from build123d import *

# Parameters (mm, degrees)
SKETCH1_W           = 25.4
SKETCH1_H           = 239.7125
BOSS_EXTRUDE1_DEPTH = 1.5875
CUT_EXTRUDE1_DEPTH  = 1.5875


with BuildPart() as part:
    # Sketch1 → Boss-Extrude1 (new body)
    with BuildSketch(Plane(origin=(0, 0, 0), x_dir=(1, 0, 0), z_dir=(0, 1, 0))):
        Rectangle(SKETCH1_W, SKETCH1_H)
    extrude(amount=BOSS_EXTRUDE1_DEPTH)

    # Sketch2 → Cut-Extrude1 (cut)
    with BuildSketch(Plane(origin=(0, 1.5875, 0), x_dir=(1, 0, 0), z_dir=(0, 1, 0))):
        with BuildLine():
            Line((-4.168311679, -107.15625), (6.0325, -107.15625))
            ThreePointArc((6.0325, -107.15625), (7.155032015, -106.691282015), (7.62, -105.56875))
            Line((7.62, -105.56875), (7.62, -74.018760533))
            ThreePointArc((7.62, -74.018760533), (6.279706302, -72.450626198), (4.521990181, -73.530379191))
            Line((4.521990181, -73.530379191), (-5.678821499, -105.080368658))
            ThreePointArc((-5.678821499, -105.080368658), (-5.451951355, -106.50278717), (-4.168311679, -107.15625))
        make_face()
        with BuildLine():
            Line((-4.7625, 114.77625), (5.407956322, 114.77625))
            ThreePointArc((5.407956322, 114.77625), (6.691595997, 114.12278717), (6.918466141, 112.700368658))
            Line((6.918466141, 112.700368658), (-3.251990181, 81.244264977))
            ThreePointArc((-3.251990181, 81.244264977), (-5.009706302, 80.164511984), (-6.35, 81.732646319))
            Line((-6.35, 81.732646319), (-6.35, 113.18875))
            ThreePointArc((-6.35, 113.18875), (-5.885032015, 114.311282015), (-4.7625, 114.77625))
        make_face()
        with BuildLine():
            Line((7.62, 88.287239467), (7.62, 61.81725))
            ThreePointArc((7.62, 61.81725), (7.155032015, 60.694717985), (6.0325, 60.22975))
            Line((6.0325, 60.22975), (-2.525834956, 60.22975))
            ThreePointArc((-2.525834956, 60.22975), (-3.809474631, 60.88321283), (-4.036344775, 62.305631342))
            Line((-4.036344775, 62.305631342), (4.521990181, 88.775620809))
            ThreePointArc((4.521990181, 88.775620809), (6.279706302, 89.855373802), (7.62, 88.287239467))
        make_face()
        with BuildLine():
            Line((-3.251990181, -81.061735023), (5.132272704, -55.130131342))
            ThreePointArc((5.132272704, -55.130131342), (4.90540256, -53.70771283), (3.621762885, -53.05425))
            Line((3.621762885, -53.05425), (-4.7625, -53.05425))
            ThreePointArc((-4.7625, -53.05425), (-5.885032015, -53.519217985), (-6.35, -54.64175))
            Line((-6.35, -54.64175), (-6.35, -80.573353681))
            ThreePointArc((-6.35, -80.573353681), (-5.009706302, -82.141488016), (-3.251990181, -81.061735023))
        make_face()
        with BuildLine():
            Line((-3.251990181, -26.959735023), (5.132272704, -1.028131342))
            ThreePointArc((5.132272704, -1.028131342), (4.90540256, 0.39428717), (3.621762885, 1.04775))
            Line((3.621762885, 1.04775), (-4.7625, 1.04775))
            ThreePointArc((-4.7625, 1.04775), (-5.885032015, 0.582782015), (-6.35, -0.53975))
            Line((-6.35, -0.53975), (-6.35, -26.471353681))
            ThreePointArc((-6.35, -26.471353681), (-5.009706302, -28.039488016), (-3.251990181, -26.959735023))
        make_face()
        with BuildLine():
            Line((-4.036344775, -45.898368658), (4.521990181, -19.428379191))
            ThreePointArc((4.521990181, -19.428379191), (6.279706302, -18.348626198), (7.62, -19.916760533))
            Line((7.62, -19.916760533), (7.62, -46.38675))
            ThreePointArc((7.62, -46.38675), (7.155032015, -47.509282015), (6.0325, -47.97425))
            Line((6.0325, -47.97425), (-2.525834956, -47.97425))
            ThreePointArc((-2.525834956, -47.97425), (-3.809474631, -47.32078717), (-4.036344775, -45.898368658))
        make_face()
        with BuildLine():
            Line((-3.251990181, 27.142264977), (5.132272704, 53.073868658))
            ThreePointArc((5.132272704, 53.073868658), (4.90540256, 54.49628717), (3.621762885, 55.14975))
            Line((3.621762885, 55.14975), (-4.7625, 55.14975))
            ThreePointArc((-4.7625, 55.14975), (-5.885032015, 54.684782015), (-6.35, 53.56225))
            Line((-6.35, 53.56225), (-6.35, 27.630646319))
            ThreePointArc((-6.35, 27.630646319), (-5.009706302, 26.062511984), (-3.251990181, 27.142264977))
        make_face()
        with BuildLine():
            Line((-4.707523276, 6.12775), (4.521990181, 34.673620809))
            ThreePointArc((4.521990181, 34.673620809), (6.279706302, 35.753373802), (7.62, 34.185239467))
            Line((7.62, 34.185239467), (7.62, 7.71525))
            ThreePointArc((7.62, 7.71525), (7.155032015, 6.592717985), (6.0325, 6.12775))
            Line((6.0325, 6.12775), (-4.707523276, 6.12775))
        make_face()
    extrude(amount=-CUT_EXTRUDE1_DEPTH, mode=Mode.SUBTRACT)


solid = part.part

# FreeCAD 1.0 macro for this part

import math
import FreeCAD as App
import Part
import Sketcher
from FreeCAD import Vector
Q = App.Units.Quantity


def add_polygon(sketch, points):
    """Adds a closed chain of lines whose ends are joined by coincident constraints."""
    first, n = sketch.GeometryCount, len(points)
    for a, b in zip(points, points[1:] + points[:1]):
        sketch.addGeometry(Part.LineSegment(App.Vector(*a, 0), App.Vector(*b, 0)), False)
    for i in range(n):
        sketch.addConstraint(Sketcher.Constraint("Coincident", first + i, 2, first + (i + 1) % n, 1))

doc = App.newDocument("Part")
body = doc.addObject("PartDesign::Body", "Body")

sketch1 = body.newObject("Sketcher::SketchObject", "Sketch")
sketch1.AttachmentSupport = (doc.getObject("XZ_Plane"), [""])
sketch1.MapMode = "FlatFace"
add_polygon(sketch1, [(-13, -120), (-13, 120), (13, 120), (13, -120)])
sketch1.addConstraint([
    Sketcher.Constraint("Vertical", 0),
    Sketcher.Constraint("Horizontal", 1),
    Sketcher.Constraint("Vertical", 2),
    Sketcher.Constraint("Horizontal", 3),
    Sketcher.Constraint("Symmetric", 0, 2, 2, 2, -1, 1),
    Sketcher.Constraint("DistanceX", 1, 1, 1, 2, Q("1 in")),
    Sketcher.Constraint("DistanceY", 0, 1, 0, 2, Q("9.4375 in")),
])
pad1 = body.newObject("PartDesign::Pad", "Pad")
pad1.Profile = sketch1
pad1.Length = Q("0.0625 in")
pad1.Reversed = True

sketch2 = body.newObject("Sketcher::SketchObject", "Sketch001")
sketch2.AttachmentSupport = (doc.getObject("XZ_Plane"), [""])
sketch2.MapMode = "FlatFace"
sketch2.AttachmentOffset = App.Placement(Vector(0, 0, -0.0625 * 25.4), App.Rotation())
sketch2.addGeometry([
    Part.LineSegment(Vector(-4.2, 107.2, 0), Vector(6, 107.2, 0)),
    Part.ArcOfCircle(Part.Circle(Vector(6, 105.6, 0), Vector(0, 0, 1), 1.6), math.radians(0), math.radians(90)),
    Part.LineSegment(Vector(7.6, 105.6, 0), Vector(7.6, 74, 0)),
    Part.ArcOfCircle(Part.Circle(Vector(6, 74, 0), Vector(0, 0, 1), 1.6), math.radians(-162), math.radians(0)),
    Part.LineSegment(Vector(4.5, 73.5, 0), Vector(-5.7, 105.1, 0)),
    Part.ArcOfCircle(Part.Circle(Vector(-4.2, 105.6, 0), Vector(0, 0, 1), 1.6), math.radians(90), math.radians(198)),
    Part.LineSegment(Vector(5.4, -114.8, 0), Vector(-4.8, -114.8, 0)),
    Part.ArcOfCircle(Part.Circle(Vector(-4.8, -113.2, 0), Vector(0, 0, 1), 1.6), math.radians(180), math.radians(270)),
    Part.LineSegment(Vector(-6.3, -113.2, 0), Vector(-6.3, -81.7, 0)),
    Part.ArcOfCircle(Part.Circle(Vector(-4.8, -81.7, 0), Vector(0, 0, 1), 1.6), math.radians(18), math.radians(180)),
    Part.LineSegment(Vector(-3.3, -81.2, 0), Vector(6.9, -112.7, 0)),
    Part.ArcOfCircle(Part.Circle(Vector(5.4, -113.2, 0), Vector(0, 0, 1), 1.6), math.radians(-90), math.radians(18)),
    Part.LineSegment(Vector(7.6, -61.8, 0), Vector(7.6, -88.3, 0)),
    Part.ArcOfCircle(Part.Circle(Vector(6, -88.3, 0), Vector(0, 0, 1), 1.6), math.radians(-162), math.radians(0)),
    Part.LineSegment(Vector(4.5, -88.8, 0), Vector(-4, -62.3, 0)),
    Part.ArcOfCircle(Part.Circle(Vector(-2.5, -61.8, 0), Vector(0, 0, 1), 1.6), math.radians(90), math.radians(198)),
    Part.LineSegment(Vector(-2.5, -60.2, 0), Vector(6, -60.2, 0)),
    Part.ArcOfCircle(Part.Circle(Vector(6, -61.8, 0), Vector(0, 0, 1), 1.6), math.radians(0), math.radians(90)),
    Part.LineSegment(Vector(-3.3, 81.1, 0), Vector(5.1, 55.1, 0)),
    Part.ArcOfCircle(Part.Circle(Vector(3.6, 54.6, 0), Vector(0, 0, 1), 1.6), math.radians(-90), math.radians(18)),
    Part.LineSegment(Vector(3.6, 53.1, 0), Vector(-4.8, 53.1, 0)),
    Part.ArcOfCircle(Part.Circle(Vector(-4.8, 54.6, 0), Vector(0, 0, 1), 1.6), math.radians(180), math.radians(270)),
    Part.LineSegment(Vector(-6.3, 54.6, 0), Vector(-6.3, 80.6, 0)),
    Part.ArcOfCircle(Part.Circle(Vector(-4.8, 80.6, 0), Vector(0, 0, 1), 1.6), math.radians(18), math.radians(180)),
    Part.LineSegment(Vector(-3.3, 27, 0), Vector(5.1, 1, 0)),
    Part.ArcOfCircle(Part.Circle(Vector(3.6, 0.5, 0), Vector(0, 0, 1), 1.6), math.radians(-90), math.radians(18)),
    Part.LineSegment(Vector(3.6, -1, 0), Vector(-4.8, -1, 0)),
    Part.ArcOfCircle(Part.Circle(Vector(-4.8, 0.5, 0), Vector(0, 0, 1), 1.6), math.radians(180), math.radians(270)),
    Part.LineSegment(Vector(-6.3, 0.5, 0), Vector(-6.3, 26.5, 0)),
    Part.ArcOfCircle(Part.Circle(Vector(-4.8, 26.5, 0), Vector(0, 0, 1), 1.6), math.radians(18), math.radians(180)),
    Part.LineSegment(Vector(4.5, 19.4, 0), Vector(-4, 45.9, 0)),
    Part.ArcOfCircle(Part.Circle(Vector(-2.5, 46.4, 0), Vector(0, 0, 1), 1.6), math.radians(90), math.radians(198)),
    Part.LineSegment(Vector(-2.5, 48, 0), Vector(6, 48, 0)),
    Part.ArcOfCircle(Part.Circle(Vector(6, 46.4, 0), Vector(0, 0, 1), 1.6), math.radians(0), math.radians(90)),
    Part.LineSegment(Vector(7.6, 46.4, 0), Vector(7.6, 19.9, 0)),
    Part.ArcOfCircle(Part.Circle(Vector(6, 19.9, 0), Vector(0, 0, 1), 1.6), math.radians(-162), math.radians(0)),
    Part.LineSegment(Vector(-3.3, -27.1, 0), Vector(5.1, -53.1, 0)),
    Part.ArcOfCircle(Part.Circle(Vector(3.6, -53.6, 0), Vector(0, 0, 1), 1.6), math.radians(-90), math.radians(18)),
    Part.LineSegment(Vector(3.6, -55.1, 0), Vector(-4.8, -55.1, 0)),
    Part.ArcOfCircle(Part.Circle(Vector(-4.8, -53.6, 0), Vector(0, 0, 1), 1.6), math.radians(180), math.radians(270)),
    Part.LineSegment(Vector(-6.3, -53.6, 0), Vector(-6.3, -27.6, 0)),
    Part.ArcOfCircle(Part.Circle(Vector(-4.8, -27.6, 0), Vector(0, 0, 1), 1.6), math.radians(18), math.radians(180)),
    Part.LineSegment(Vector(4.5, -34.7, 0), Vector(-4.7, -6.1, 0)),
    Part.LineSegment(Vector(-4.7, -6.1, 0), Vector(6, -6.1, 0)),
    Part.ArcOfCircle(Part.Circle(Vector(6, -7.7, 0), Vector(0, 0, 1), 1.6), math.radians(0), math.radians(90)),
    Part.LineSegment(Vector(7.6, -7.7, 0), Vector(7.6, -34.2, 0)),
    Part.ArcOfCircle(Part.Circle(Vector(6, -34.2, 0), Vector(0, 0, 1), 1.6), math.radians(-162), math.radians(0)),
], False)
sketch2.addConstraint([
    Sketcher.Constraint("Tangent", 0, 2, 1, 2),
    Sketcher.Constraint("Tangent", 1, 1, 2, 1),
    Sketcher.Constraint("Tangent", 2, 2, 3, 2),
    Sketcher.Constraint("Tangent", 3, 1, 4, 1),
    Sketcher.Constraint("Tangent", 4, 2, 5, 2),
    Sketcher.Constraint("Tangent", 5, 1, 0, 1),
    Sketcher.Constraint("Tangent", 6, 2, 7, 2),
    Sketcher.Constraint("Tangent", 7, 1, 8, 1),
    Sketcher.Constraint("Tangent", 8, 2, 9, 2),
    Sketcher.Constraint("Tangent", 9, 1, 10, 1),
    Sketcher.Constraint("Tangent", 10, 2, 11, 2),
    Sketcher.Constraint("Tangent", 11, 1, 6, 1),
    Sketcher.Constraint("Tangent", 12, 2, 13, 2),
    Sketcher.Constraint("Tangent", 13, 1, 14, 1),
    Sketcher.Constraint("Tangent", 14, 2, 15, 2),
    Sketcher.Constraint("Tangent", 15, 1, 16, 1),
    Sketcher.Constraint("Tangent", 16, 2, 17, 2),
    Sketcher.Constraint("Tangent", 17, 1, 12, 1),
    Sketcher.Constraint("Tangent", 18, 2, 19, 2),
    Sketcher.Constraint("Tangent", 19, 1, 20, 1),
    Sketcher.Constraint("Tangent", 20, 2, 21, 2),
    Sketcher.Constraint("Tangent", 21, 1, 22, 1),
    Sketcher.Constraint("Tangent", 22, 2, 23, 2),
    Sketcher.Constraint("Tangent", 23, 1, 18, 1),
    Sketcher.Constraint("Tangent", 24, 2, 25, 2),
    Sketcher.Constraint("Tangent", 25, 1, 26, 1),
    Sketcher.Constraint("Tangent", 26, 2, 27, 2),
    Sketcher.Constraint("Tangent", 27, 1, 28, 1),
    Sketcher.Constraint("Tangent", 28, 2, 29, 2),
    Sketcher.Constraint("Tangent", 29, 1, 24, 1),
    Sketcher.Constraint("Tangent", 30, 2, 31, 2),
    Sketcher.Constraint("Tangent", 31, 1, 32, 1),
    Sketcher.Constraint("Tangent", 32, 2, 33, 2),
    Sketcher.Constraint("Tangent", 33, 1, 34, 1),
    Sketcher.Constraint("Tangent", 34, 2, 35, 2),
    Sketcher.Constraint("Tangent", 35, 1, 30, 1),
    Sketcher.Constraint("Tangent", 36, 2, 37, 2),
    Sketcher.Constraint("Tangent", 37, 1, 38, 1),
    Sketcher.Constraint("Tangent", 38, 2, 39, 2),
    Sketcher.Constraint("Tangent", 39, 1, 40, 1),
    Sketcher.Constraint("Tangent", 40, 2, 41, 2),
    Sketcher.Constraint("Tangent", 41, 1, 36, 1),
    Sketcher.Constraint("Coincident", 42, 2, 43, 1),
    Sketcher.Constraint("Tangent", 43, 2, 44, 2),
    Sketcher.Constraint("Tangent", 44, 1, 45, 1),
    Sketcher.Constraint("Tangent", 45, 2, 46, 2),
    Sketcher.Constraint("Tangent", 46, 1, 42, 1),
    Sketcher.Constraint("Horizontal", 0),
    Sketcher.Constraint("Vertical", 2),
    Sketcher.Constraint("Horizontal", 6),
    Sketcher.Constraint("Vertical", 8),
    Sketcher.Constraint("Vertical", 12),
    Sketcher.Constraint("Horizontal", 16),
    Sketcher.Constraint("Horizontal", 20),
    Sketcher.Constraint("Vertical", 22),
    Sketcher.Constraint("Horizontal", 26),
    Sketcher.Constraint("Vertical", 28),
    Sketcher.Constraint("Horizontal", 32),
    Sketcher.Constraint("Vertical", 34),
    Sketcher.Constraint("Horizontal", 38),
    Sketcher.Constraint("Vertical", 40),
    Sketcher.Constraint("Horizontal", 43),
    Sketcher.Constraint("Vertical", 45),
    Sketcher.Constraint("Equal", 1, 3),
    Sketcher.Constraint("Equal", 3, 5),
    Sketcher.Constraint("Equal", 5, 7),
    Sketcher.Constraint("Equal", 7, 9),
    Sketcher.Constraint("Equal", 9, 11),
    Sketcher.Constraint("Equal", 11, 13),
    Sketcher.Constraint("Equal", 13, 15),
    Sketcher.Constraint("Equal", 15, 17),
    Sketcher.Constraint("Equal", 17, 19),
    Sketcher.Constraint("Equal", 19, 21),
    Sketcher.Constraint("Equal", 21, 23),
    Sketcher.Constraint("Equal", 23, 25),
    Sketcher.Constraint("Equal", 25, 27),
    Sketcher.Constraint("Equal", 27, 29),
    Sketcher.Constraint("Equal", 29, 31),
    Sketcher.Constraint("Equal", 31, 33),
    Sketcher.Constraint("Equal", 33, 35),
    Sketcher.Constraint("Equal", 35, 37),
    Sketcher.Constraint("Equal", 37, 39),
    Sketcher.Constraint("Equal", 39, 41),
    Sketcher.Constraint("Equal", 41, 44),
    Sketcher.Constraint("Equal", 44, 46),
    Sketcher.Constraint("Parallel", 4, 10),
    Sketcher.Constraint("Parallel", 10, 14),
    Sketcher.Constraint("Parallel", 14, 18),
    Sketcher.Constraint("Parallel", 18, 24),
    Sketcher.Constraint("Parallel", 24, 30),
    Sketcher.Constraint("Parallel", 30, 36),
    Sketcher.Constraint("Parallel", 36, 42),
    Sketcher.Constraint("Vertical", 3, 3, 13, 3),
    Sketcher.Constraint("Vertical", 9, 3, 21, 3),
    Sketcher.Constraint("Vertical", 19, 3, 25, 3),
    Sketcher.Constraint("Vertical", 23, 3, 27, 3),
    Sketcher.Constraint("Vertical", 15, 3, 31, 3),
    Sketcher.Constraint("Vertical", 17, 3, 33, 3),
    Sketcher.Constraint("Vertical", 25, 3, 37, 3),
    Sketcher.Constraint("Vertical", 29, 3, 39, 3),
    Sketcher.Constraint("Vertical", 35, 3, 44, 3),
    Sketcher.Constraint("Equal", 34, 45),
    Sketcher.Constraint("Radius", 1, Q("0.0625 in")),
    Sketcher.Constraint("DistanceX", -1, 1, 1, 1, Q("0.3 in")),
    Sketcher.Constraint("DistanceX", 7, 1, -1, 1, Q("0.25 in")),
    Sketcher.Constraint("DistanceY", -1, 1, 1, 3, Q("4.15625 in")),
    Sketcher.Constraint("DistanceX", 0, 1, 0, 2, 10.200812),
    Sketcher.Constraint("DistanceY", 2, 2, 2, 1, 31.549989),
    Sketcher.Constraint("DistanceY", 12, 2, 12, 1, 26.469989),
    Sketcher.Constraint("Distance", 10, 33.059411),
    Sketcher.Constraint("Distance", 18, 27.253329),
    Sketcher.Constraint("DistanceY", 7, 3, -1, 1, 113.18875),
    Sketcher.Constraint("DistanceY", 13, 3, -1, 1, 88.287239),
    Sketcher.Constraint("DistanceY", -1, 1, 19, 3, 54.64175),
    Sketcher.Constraint("DistanceY", -1, 1, 25, 3, 0.53975),
    Sketcher.Constraint("DistanceY", -1, 1, 31, 3, 46.38675),
    Sketcher.Constraint("DistanceY", 37, 3, -1, 1, 53.56225),
    Sketcher.Constraint("DistanceY", 44, 3, -1, 1, 7.71525),
])
pocket1 = body.newObject("PartDesign::Pocket", "Pocket")
pocket1.Profile = sketch2
pocket1.Length = Q("0.0625 in")
pocket1.Reversed = True

doc.recompute()
